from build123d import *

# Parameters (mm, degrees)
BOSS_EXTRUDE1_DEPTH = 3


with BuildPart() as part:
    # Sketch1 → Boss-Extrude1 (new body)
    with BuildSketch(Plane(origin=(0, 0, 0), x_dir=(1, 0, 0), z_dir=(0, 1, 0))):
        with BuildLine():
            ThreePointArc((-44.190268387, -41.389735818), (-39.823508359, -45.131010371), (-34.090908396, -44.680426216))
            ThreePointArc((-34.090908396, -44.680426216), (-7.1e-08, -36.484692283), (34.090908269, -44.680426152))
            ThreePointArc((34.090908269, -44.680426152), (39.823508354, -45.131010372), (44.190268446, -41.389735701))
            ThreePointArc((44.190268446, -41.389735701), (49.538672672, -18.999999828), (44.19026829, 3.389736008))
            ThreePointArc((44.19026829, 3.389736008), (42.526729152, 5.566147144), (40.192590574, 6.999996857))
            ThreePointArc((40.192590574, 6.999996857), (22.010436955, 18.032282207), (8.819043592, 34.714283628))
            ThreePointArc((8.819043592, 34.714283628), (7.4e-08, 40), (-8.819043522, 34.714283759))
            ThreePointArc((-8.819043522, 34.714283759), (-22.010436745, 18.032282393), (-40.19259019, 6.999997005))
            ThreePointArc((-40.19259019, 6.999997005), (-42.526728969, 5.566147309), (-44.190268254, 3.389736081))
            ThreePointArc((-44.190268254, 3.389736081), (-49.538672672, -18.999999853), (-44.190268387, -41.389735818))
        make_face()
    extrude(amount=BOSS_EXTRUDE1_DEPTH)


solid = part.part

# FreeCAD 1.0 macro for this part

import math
import FreeCAD as App
import Part
import Sketcher

V = App.Vector
Q = App.Units.Quantity

doc = App.newDocument("Part")
body = doc.addObject("PartDesign::Body", "Body")

# Sketch on XZ plane
sketch1 = body.newObject("Sketcher::SketchObject", "Sketch")
sketch1.AttachmentSupport = (doc.getObject("XZ_Plane"), [""])
sketch1.MapMode = "FlatFace"
sketch1.addGeometry([
    Part.ArcOfCircle(Part.Circle(V(-37.5, 38, 0), V(0, 0, 1), 7.5), math.radians(62.964302), math.radians(153.130188)),  # 0
    Part.ArcOfCircle(Part.Circle(V(0, 111.484692, 0), V(0, 0, 1), 75), math.radians(-117.035691), math.radians(-62.964309)),  # 1
    Part.ArcOfCircle(Part.Circle(V(37.5, 38, 0), V(0, 0, 1), 7.5), math.radians(26.869811), math.radians(117.035699)),  # 2
    Part.ArcOfCircle(Part.Circle(V(0, 19, 0), V(0, 0, 1), 49.538673), math.radians(-26.869813), math.radians(26.869813)),  # 3
    Part.ArcOfCircle(Part.Circle(V(37.5, 0, 0), V(0, 0, 1), 7.5), math.radians(-68.960463), math.radians(-26.869814)),  # 4
    Part.ArcOfCircle(Part.Circle(V(61.733312, -62.999973, 0), V(0, 0, 1), 60), math.radians(111.039533), math.radians(151.872959)),  # 5
    Part.ArcOfCircle(Part.Circle(V(0, -30, 0), V(0, 0, 1), 10), math.radians(-151.872944), math.radians(-28.127055)),  # 6
    Part.ArcOfCircle(Part.Circle(V(-61.733312, -62.999973, 0), V(0, 0, 1), 60), math.radians(28.127041), math.radians(68.960466)),  # 7
    Part.ArcOfCircle(Part.Circle(V(-37.5, 0, 0), V(0, 0, 1), 7.5), math.radians(-153.130186), math.radians(-111.039534)),  # 8
    Part.ArcOfCircle(Part.Circle(V(0, 19, 0), V(0, 0, 1), 49.538673), math.radians(153.130187), math.radians(206.869813)),  # 9
], False)
sketch1.addConstraint([
    Sketcher.Constraint("Tangent", 0, 1, 1, 1),
    Sketcher.Constraint("Tangent", 1, 2, 2, 2),
    Sketcher.Constraint("Tangent", 2, 1, 3, 2),
    Sketcher.Constraint("Tangent", 3, 1, 4, 2),
    Sketcher.Constraint("Tangent", 4, 1, 5, 1),
    Sketcher.Constraint("Tangent", 5, 2, 6, 2),
    Sketcher.Constraint("Tangent", 6, 1, 7, 1),
    Sketcher.Constraint("Tangent", 7, 2, 8, 2),
    Sketcher.Constraint("Tangent", 8, 1, 9, 2),
    Sketcher.Constraint("Tangent", 9, 1, 0, 2),
    Sketcher.Constraint("Coincident", 9, 3, 3, 3),
    Sketcher.Constraint("Equal", 0, 2),
    Sketcher.Constraint("Equal", 2, 4),
    Sketcher.Constraint("Equal", 5, 7),
    Sketcher.Constraint("Equal", 4, 8),
    Sketcher.Constraint("Equal", 3, 9),
    Sketcher.Constraint("Symmetric", 4, 3, 8, 3, -1, 1),
    Sketcher.Constraint("Symmetric", 0, 3, 2, 3, -2),
    Sketcher.Constraint("PointOnObject", 6, 3, -2),
    Sketcher.Constraint("Vertical", 2, 3, 4, 3),
    Sketcher.Constraint("Radius", 1, Q("75 mm")),
    Sketcher.Constraint("Radius", 5, Q("60 mm")),
    Sketcher.Constraint("Radius", 6, Q("10 mm")),
    Sketcher.Constraint("Radius", 0, Q("7.5 mm")),
    Sketcher.Constraint("DistanceY", -1, 1, 0, 3, Q("38 mm")),
    Sketcher.Constraint("DistanceY", 6, 3, -1, 1, Q("30 mm")),
    Sketcher.Constraint("DistanceX", 0, 3, 2, 3, Q("75 mm")),
])
pad1 = body.newObject("PartDesign::Pad", "Pad")
pad1.Profile = sketch1
pad1.Length = 3
pad1.Reversed = True

doc.recompute()
